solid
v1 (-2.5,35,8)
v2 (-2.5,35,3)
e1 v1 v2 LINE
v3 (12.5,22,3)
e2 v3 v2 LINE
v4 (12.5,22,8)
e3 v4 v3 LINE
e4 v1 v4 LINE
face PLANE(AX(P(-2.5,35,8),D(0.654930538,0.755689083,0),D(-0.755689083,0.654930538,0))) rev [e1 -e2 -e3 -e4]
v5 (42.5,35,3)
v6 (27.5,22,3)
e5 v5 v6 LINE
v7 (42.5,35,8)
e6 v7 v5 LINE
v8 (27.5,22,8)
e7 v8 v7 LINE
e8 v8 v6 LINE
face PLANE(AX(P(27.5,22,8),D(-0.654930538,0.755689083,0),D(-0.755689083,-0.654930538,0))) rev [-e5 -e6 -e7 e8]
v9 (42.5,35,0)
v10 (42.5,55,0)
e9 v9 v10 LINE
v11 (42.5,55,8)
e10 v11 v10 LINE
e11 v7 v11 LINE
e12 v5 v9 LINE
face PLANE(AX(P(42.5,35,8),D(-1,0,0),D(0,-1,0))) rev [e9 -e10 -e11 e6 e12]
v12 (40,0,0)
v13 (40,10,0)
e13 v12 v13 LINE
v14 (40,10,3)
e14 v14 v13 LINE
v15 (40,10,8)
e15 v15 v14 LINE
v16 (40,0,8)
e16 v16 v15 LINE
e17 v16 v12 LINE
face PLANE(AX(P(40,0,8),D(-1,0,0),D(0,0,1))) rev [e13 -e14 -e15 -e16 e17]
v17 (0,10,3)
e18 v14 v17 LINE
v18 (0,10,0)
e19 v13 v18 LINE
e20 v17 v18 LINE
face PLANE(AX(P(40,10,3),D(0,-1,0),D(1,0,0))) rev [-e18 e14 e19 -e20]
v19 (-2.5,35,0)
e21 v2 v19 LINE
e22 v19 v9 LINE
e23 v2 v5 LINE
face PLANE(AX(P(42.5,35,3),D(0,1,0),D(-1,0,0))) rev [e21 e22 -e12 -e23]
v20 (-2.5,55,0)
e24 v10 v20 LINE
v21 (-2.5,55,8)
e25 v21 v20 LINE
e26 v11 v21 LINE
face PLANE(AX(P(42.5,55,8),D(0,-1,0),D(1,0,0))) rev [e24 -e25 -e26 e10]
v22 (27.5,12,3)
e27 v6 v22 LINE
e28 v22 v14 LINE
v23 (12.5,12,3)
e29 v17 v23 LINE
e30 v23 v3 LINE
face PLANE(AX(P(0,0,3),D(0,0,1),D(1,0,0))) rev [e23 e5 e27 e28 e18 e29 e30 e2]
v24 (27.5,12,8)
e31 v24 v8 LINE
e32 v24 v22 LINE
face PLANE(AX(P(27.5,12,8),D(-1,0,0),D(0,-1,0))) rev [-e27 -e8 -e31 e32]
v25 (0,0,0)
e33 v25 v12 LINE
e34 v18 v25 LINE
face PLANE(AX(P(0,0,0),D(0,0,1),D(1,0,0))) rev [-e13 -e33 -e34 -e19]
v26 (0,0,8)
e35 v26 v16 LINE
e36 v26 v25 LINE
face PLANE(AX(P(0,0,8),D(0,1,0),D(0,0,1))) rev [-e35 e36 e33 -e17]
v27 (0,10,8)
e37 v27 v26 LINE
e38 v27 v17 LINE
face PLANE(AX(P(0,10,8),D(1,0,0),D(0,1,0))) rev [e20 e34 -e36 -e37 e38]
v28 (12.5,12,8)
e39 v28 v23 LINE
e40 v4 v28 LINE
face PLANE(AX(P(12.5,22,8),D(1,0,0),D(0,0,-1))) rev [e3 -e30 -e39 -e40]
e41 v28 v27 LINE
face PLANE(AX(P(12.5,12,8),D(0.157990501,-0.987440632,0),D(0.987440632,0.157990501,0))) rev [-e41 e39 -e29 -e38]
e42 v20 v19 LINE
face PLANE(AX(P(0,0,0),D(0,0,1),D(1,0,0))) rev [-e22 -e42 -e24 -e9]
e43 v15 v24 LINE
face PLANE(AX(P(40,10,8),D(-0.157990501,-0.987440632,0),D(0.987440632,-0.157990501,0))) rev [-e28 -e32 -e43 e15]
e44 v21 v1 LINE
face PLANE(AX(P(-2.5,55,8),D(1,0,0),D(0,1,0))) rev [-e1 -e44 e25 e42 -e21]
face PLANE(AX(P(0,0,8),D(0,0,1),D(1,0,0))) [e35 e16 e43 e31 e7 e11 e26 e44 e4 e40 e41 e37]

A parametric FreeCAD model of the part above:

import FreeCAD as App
import Part
import Sketcher
Q = App.Units.Quantity

doc = App.newDocument("Part")
body = doc.addObject("PartDesign::Body", "Body")

sketch1 = body.newObject("Sketcher::SketchObject", "Sketch")
sketch1.AttachmentSupport = (doc.getObject("XY_Plane"), [""])
sketch1.MapMode = "FlatFace"
sketch1.addGeometry(Part.LineSegment(App.Vector(0, 0, 0), App.Vector(40, 0, 0)), False)
sketch1.addGeometry(Part.LineSegment(App.Vector(40, 0, 0), App.Vector(40, 10, 0)), False)
sketch1.addGeometry(Part.LineSegment(App.Vector(40, 10, 0), App.Vector(28, 12, 0)), False)
sketch1.addGeometry(Part.LineSegment(App.Vector(28, 12, 0), App.Vector(28, 22, 0)), False)
sketch1.addGeometry(Part.LineSegment(App.Vector(28, 22, 0), App.Vector(42, 35, 0)), False)
sketch1.addGeometry(Part.LineSegment(App.Vector(42, 35, 0), App.Vector(42, 55, 0)), False)
sketch1.addGeometry(Part.LineSegment(App.Vector(42, 55, 0), App.Vector(-2, 55, 0)), False)
sketch1.addGeometry(Part.LineSegment(App.Vector(-2, 55, 0), App.Vector(-2, 35, 0)), False)
sketch1.addGeometry(Part.LineSegment(App.Vector(-2, 35, 0), App.Vector(12, 22, 0)), False)
sketch1.addGeometry(Part.LineSegment(App.Vector(12, 22, 0), App.Vector(12, 12, 0)), False)
sketch1.addGeometry(Part.LineSegment(App.Vector(12, 12, 0), App.Vector(0, 10, 0)), False)
sketch1.addGeometry(Part.LineSegment(App.Vector(0, 10, 0), App.Vector(0, 0, 0)), False)
sketch1.addConstraint(Sketcher.Constraint("Coincident", 0, 2, 1, 1))
sketch1.addConstraint(Sketcher.Constraint("Coincident", 1, 2, 2, 1))
sketch1.addConstraint(Sketcher.Constraint("Coincident", 2, 2, 3, 1))
sketch1.addConstraint(Sketcher.Constraint("Coincident", 3, 2, 4, 1))
sketch1.addConstraint(Sketcher.Constraint("Coincident", 4, 2, 5, 1))
sketch1.addConstraint(Sketcher.Constraint("Coincident", 5, 2, 6, 1))
sketch1.addConstraint(Sketcher.Constraint("Coincident", 6, 2, 7, 1))
sketch1.addConstraint(Sketcher.Constraint("Coincident", 7, 2, 8, 1))
sketch1.addConstraint(Sketcher.Constraint("Coincident", 8, 2, 9, 1))
sketch1.addConstraint(Sketcher.Constraint("Coincident", 9, 2, 10, 1))
sketch1.addConstraint(Sketcher.Constraint("Coincident", 10, 2, 11, 1))
sketch1.addConstraint(Sketcher.Constraint("Coincident", 11, 2, 0, 1))
sketch1.addConstraint(Sketcher.Constraint("Horizontal", 0))
sketch1.addConstraint(Sketcher.Constraint("Vertical", 1))
sketch1.addConstraint(Sketcher.Constraint("Vertical", 3))
sketch1.addConstraint(Sketcher.Constraint("Vertical", 5))
sketch1.addConstraint(Sketcher.Constraint("Horizontal", 6))
sketch1.addConstraint(Sketcher.Constraint("Vertical", 7))
sketch1.addConstraint(Sketcher.Constraint("Vertical", 9))
sketch1.addConstraint(Sketcher.Constraint("Vertical", 11))
sketch1.addConstraint(Sketcher.Constraint("Coincident", 11, 2, -1, 1))
sketch1.addConstraint(Sketcher.Constraint("Horizontal", 4, 2, 7, 2))
sketch1.addConstraint(Sketcher.Constraint("Horizontal", 3, 2, 8, 2))
sketch1.addConstraint(Sketcher.Constraint("Horizontal", 2, 2, 9, 2))
sketch1.addConstraint(Sketcher.Constraint("Horizontal", 1, 2, 10, 2))
sketch1.addConstraint(Sketcher.Constraint("Equal", 1, 3))
sketch1.addConstraint(Sketcher.Constraint("Equal", 4, 8))
sketch1.addConstraint(Sketcher.Constraint("Equal", 2, 10))
sketch1.addConstraint(Sketcher.Constraint("DistanceX", 0, 1, 0, 2, Q("40 mm")))
sketch1.addConstraint(Sketcher.Constraint("DistanceX", 6, 2, 6, 1, Q("45 mm")))
sketch1.addConstraint(Sketcher.Constraint("DistanceY", 1, 1, 1, 2, Q("10 mm")))
sketch1.addConstraint(Sketcher.Constraint("DistanceY", 5, 1, 5, 2, Q("20 mm")))
sketch1.addConstraint(Sketcher.Constraint("DistanceY", -1, 1, 2, 2, Q("12 mm")))
sketch1.addConstraint(Sketcher.Constraint("DistanceY", -1, 1, 4, 2, Q("35 mm")))
sketch1.addConstraint(Sketcher.Constraint("DistanceX", 3, 2, 4, 2, Q("15 mm")))
pad1 = body.newObject("PartDesign::Pad", "Pad")
pad1.Profile = sketch1
pad1.Length = 8

sketch2 = body.newObject("Sketcher::SketchObject", "Sketch001")
sketch2.AttachmentSupport = (doc.getObject("XY_Plane"), [""])
sketch2.MapMode = "FlatFace"
sketch2.addGeometry(Part.LineSegment(App.Vector(28, 12, 0), App.Vector(40, 10, 0)), False)
sketch2.addGeometry(Part.LineSegment(App.Vector(40, 10, 0), App.Vector(0, 10, 0)), False)
sketch2.addGeometry(Part.LineSegment(App.Vector(0, 10, 0), App.Vector(12, 12, 0)), False)
sketch2.addGeometry(Part.LineSegment(App.Vector(12, 12, 0), App.Vector(12, 22, 0)), False)
sketch2.addGeometry(Part.LineSegment(App.Vector(12, 22, 0), App.Vector(-2, 35, 0)), False)
sketch2.addGeometry(Part.LineSegment(App.Vector(-2, 35, 0), App.Vector(42, 35, 0)), False)
sketch2.addGeometry(Part.LineSegment(App.Vector(42, 35, 0), App.Vector(28, 22, 0)), False)
sketch2.addGeometry(Part.LineSegment(App.Vector(28, 22, 0), App.Vector(28, 12, 0)), False)
sketch2.addConstraint(Sketcher.Constraint("Coincident", 0, 2, 1, 1))
sketch2.addConstraint(Sketcher.Constraint("Coincident", 1, 2, 2, 1))
sketch2.addConstraint(Sketcher.Constraint("Coincident", 2, 2, 3, 1))
sketch2.addConstraint(Sketcher.Constraint("Coincident", 3, 2, 4, 1))
sketch2.addConstraint(Sketcher.Constraint("Coincident", 4, 2, 5, 1))
sketch2.addConstraint(Sketcher.Constraint("Coincident", 5, 2, 6, 1))
sketch2.addConstraint(Sketcher.Constraint("Coincident", 6, 2, 7, 1))
sketch2.addConstraint(Sketcher.Constraint("Coincident", 7, 2, 0, 1))
sketch2.addConstraint(Sketcher.Constraint("Horizontal", 1))
sketch2.addConstraint(Sketcher.Constraint("Vertical", 3))
sketch2.addConstraint(Sketcher.Constraint("Horizontal", 5))
sketch2.addConstraint(Sketcher.Constraint("Vertical", 7))
sketch2.addConstraint(Sketcher.Constraint("PointOnObject", 1, 2, -2))
sketch2.addConstraint(Sketcher.Constraint("Horizontal", 3, 2, 6, 2))
sketch2.addConstraint(Sketcher.Constraint("Horizontal", 2, 2, 7, 2))
sketch2.addConstraint(Sketcher.Constraint("Equal", 0, 2))
sketch2.addConstraint(Sketcher.Constraint("Equal", 4, 6))
sketch2.addConstraint(Sketcher.Constraint("DistanceX", 1, 2, 1, 1, Q("40 mm")))
sketch2.addConstraint(Sketcher.Constraint("DistanceX", 5, 1, 5, 2, Q("45 mm")))
sketch2.addConstraint(Sketcher.Constraint("DistanceY", 3, 1, 3, 2, Q("10 mm")))
sketch2.addConstraint(Sketcher.Constraint("DistanceY", -1, 1, 0, 2, Q("10 mm")))
sketch2.addConstraint(Sketcher.Constraint("DistanceY", -1, 1, 2, 2, Q("12 mm")))
sketch2.addConstraint(Sketcher.Constraint("DistanceY", -1, 1, 4, 2, Q("35 mm")))
sketch2.addConstraint(Sketcher.Constraint("DistanceX", 4, 2, 3, 2, Q("15 mm")))
pocket1 = body.newObject("PartDesign::Pocket", "Pocket")
pocket1.Profile = sketch2
pocket1.Length = 3
pocket1.Reversed = True

doc.recompute()
